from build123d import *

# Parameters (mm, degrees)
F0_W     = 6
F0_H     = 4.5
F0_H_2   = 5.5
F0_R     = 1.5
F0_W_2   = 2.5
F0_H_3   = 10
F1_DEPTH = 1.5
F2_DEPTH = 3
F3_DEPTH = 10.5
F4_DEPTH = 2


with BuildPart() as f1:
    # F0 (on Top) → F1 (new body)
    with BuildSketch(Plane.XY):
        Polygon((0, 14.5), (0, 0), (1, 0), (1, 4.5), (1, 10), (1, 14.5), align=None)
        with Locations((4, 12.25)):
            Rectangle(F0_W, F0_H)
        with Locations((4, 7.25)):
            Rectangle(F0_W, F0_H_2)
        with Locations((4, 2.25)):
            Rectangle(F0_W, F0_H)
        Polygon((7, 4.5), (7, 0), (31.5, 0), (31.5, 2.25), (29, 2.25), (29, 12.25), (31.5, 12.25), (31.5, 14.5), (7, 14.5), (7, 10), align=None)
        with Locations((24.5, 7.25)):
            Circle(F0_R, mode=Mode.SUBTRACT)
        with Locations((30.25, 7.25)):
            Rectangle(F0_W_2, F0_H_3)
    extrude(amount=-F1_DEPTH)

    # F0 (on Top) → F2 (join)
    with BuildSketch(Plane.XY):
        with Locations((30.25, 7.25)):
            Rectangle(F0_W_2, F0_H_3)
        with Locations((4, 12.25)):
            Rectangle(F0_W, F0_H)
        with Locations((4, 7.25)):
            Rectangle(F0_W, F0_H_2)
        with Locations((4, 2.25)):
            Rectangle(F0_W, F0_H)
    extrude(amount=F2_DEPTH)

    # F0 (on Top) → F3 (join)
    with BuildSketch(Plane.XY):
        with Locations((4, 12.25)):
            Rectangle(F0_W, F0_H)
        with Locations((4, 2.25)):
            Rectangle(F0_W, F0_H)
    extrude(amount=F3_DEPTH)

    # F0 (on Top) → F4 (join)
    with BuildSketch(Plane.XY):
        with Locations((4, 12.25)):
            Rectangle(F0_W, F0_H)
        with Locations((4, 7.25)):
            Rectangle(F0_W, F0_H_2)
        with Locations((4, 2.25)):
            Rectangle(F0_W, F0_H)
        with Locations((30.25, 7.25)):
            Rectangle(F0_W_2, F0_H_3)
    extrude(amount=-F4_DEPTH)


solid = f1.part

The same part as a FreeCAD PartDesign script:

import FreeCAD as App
import Part
import Sketcher

V = App.Vector
Q = App.Units.Quantity


def add_polygon(sketch, points):
    """Adds a closed chain of lines whose ends are joined by coincident constraints."""
    first, n = sketch.GeometryCount, len(points)
    for a, b in zip(points, points[1:] + points[:1]):
        sketch.addGeometry(Part.LineSegment(App.Vector(*a, 0), App.Vector(*b, 0)), False)
    for i in range(n):
        sketch.addConstraint(Sketcher.Constraint("Coincident", first + i, 2, first + (i + 1) % n, 1))

doc = App.newDocument("Part")
body = doc.addObject("PartDesign::Body", "Body")

sketch1 = body.newObject("Sketcher::SketchObject", "Sketch")
sketch1.AttachmentSupport = (doc.getObject("XY_Plane"), [""])
sketch1.MapMode = "FlatFace"
add_polygon(sketch1, [(0, 14.5), (0, 0), (31.5, 0), (31.5, 14.5)])
sketch1.addGeometry(Part.Circle(V(24.5, 7.25, 0), V(0, 0, 1), 1.5), False)
sketch1.addConstraint([
    Sketcher.Constraint("Vertical", 0),
    Sketcher.Constraint("Horizontal", 1),
    Sketcher.Constraint("Vertical", 2),
    Sketcher.Constraint("Horizontal", 3),
    Sketcher.Constraint("Coincident", 0, 2, -1, 1),
    Sketcher.Constraint("Diameter", 4, Q("3 mm")),
    Sketcher.Constraint("DistanceX", 1, 1, 1, 2, Q("31.5 mm")),
    Sketcher.Constraint("DistanceY", 0, 2, 0, 1, Q("14.5 mm")),
    Sketcher.Constraint("DistanceX", 4, 3, 1, 2, Q("7 mm")),
    Sketcher.Constraint("DistanceY", -1, 1, 4, 3, Q("7.25 mm")),
])
pad1 = body.newObject("PartDesign::Pad", "Pad")
pad1.Profile = sketch1
pad1.Length = 1.5
pad1.Reversed = True

sketch2 = body.newObject("Sketcher::SketchObject", "Sketch001")
sketch2.AttachmentSupport = (doc.getObject("XY_Plane"), [""])
sketch2.MapMode = "FlatFace"
add_polygon(sketch2, [(29, 12.25), (29, 2.25), (31.5, 2.25), (31.5, 12.25)])
add_polygon(sketch2, [(1, 14.5), (1, 0), (7, 0), (7, 14.5)])
sketch2.addConstraint([
    Sketcher.Constraint("Vertical", 0),
    Sketcher.Constraint("Horizontal", 1),
    Sketcher.Constraint("Vertical", 2),
    Sketcher.Constraint("Horizontal", 3),
    Sketcher.Constraint("Vertical", 4),
    Sketcher.Constraint("Horizontal", 5),
    Sketcher.Constraint("Vertical", 6),
    Sketcher.Constraint("Horizontal", 7),
    Sketcher.Constraint("PointOnObject", 4, 2, -1),
    Sketcher.Constraint("DistanceX", 5, 1, 5, 2, Q("6 mm")),
    Sketcher.Constraint("DistanceY", 0, 2, 0, 1, Q("10 mm")),
    Sketcher.Constraint("DistanceX", 1, 1, 1, 2, Q("2.5 mm")),
    Sketcher.Constraint("DistanceY", 4, 2, 4, 1, Q("14.5 mm")),
    Sketcher.Constraint("DistanceX", -1, 1, 0, 2, Q("29 mm")),
    Sketcher.Constraint("DistanceX", -1, 1, 4, 2, Q("1 mm")),
    Sketcher.Constraint("DistanceY", -1, 1, 0, 2, Q("2.25 mm")),
])
pad2 = body.newObject("PartDesign::Pad", "Pad001")
pad2.Profile = sketch2
pad2.Length = 3

sketch3 = body.newObject("Sketcher::SketchObject", "Sketch002")
sketch3.AttachmentSupport = (doc.getObject("XY_Plane"), [""])
sketch3.MapMode = "FlatFace"
add_polygon(sketch3, [(1, 14.5), (1, 10), (7, 10), (7, 14.5)])
add_polygon(sketch3, [(1, 4.5), (1, 0), (7, 0), (7, 4.5)])
sketch3.addConstraint([
    Sketcher.Constraint("Vertical", 0),
    Sketcher.Constraint("Horizontal", 1),
    Sketcher.Constraint("Vertical", 2),
    Sketcher.Constraint("Horizontal", 3),
    Sketcher.Constraint("Vertical", 4),
    Sketcher.Constraint("Horizontal", 5),
    Sketcher.Constraint("Vertical", 6),
    Sketcher.Constraint("Horizontal", 7),
    Sketcher.Constraint("PointOnObject", 4, 2, -1),
    Sketcher.Constraint("Vertical", 3, 2, 4, 2),
    Sketcher.Constraint("Vertical", 2, 2, 5, 2),
    Sketcher.Constraint("Equal", 2, 4),
    Sketcher.Constraint("DistanceX", 1, 1, 1, 2, Q("6 mm")),
    Sketcher.Constraint("DistanceY", 0, 2, 0, 1, Q("4.5 mm")),
    Sketcher.Constraint("DistanceX", -1, 1, 0, 2, Q("1 mm")),
    Sketcher.Constraint("DistanceY", -1, 1, 0, 2, Q("10 mm")),
])
pad3 = body.newObject("PartDesign::Pad", "Pad002")
pad3.Profile = sketch3
pad3.Length = 10.5

sketch4 = body.newObject("Sketcher::SketchObject", "Sketch003")
sketch4.AttachmentSupport = (doc.getObject("XY_Plane"), [""])
sketch4.MapMode = "FlatFace"
add_polygon(sketch4, [(1, 14.5), (1, 0), (7, 0), (7, 14.5)])
add_polygon(sketch4, [(29, 12.25), (29, 2.25), (31.5, 2.25), (31.5, 12.25)])
sketch4.addConstraint([
    Sketcher.Constraint("Vertical", 0),
    Sketcher.Constraint("Horizontal", 1),
    Sketcher.Constraint("Vertical", 2),
    Sketcher.Constraint("Horizontal", 3),
    Sketcher.Constraint("Vertical", 4),
    Sketcher.Constraint("Horizontal", 5),
    Sketcher.Constraint("Vertical", 6),
    Sketcher.Constraint("Horizontal", 7),
    Sketcher.Constraint("PointOnObject", 0, 2, -1),
    Sketcher.Constraint("DistanceX", 1, 1, 1, 2, Q("6 mm")),
    Sketcher.Constraint("DistanceY", 4, 2, 4, 1, Q("10 mm")),
    Sketcher.Constraint("DistanceX", 5, 1, 5, 2, Q("2.5 mm")),
    Sketcher.Constraint("DistanceY", 0, 2, 0, 1, Q("14.5 mm")),
    Sketcher.Constraint("DistanceX", -1, 1, 0, 2, Q("1 mm")),
    Sketcher.Constraint("DistanceX", -1, 1, 4, 2, Q("29 mm")),
    Sketcher.Constraint("DistanceY", -1, 1, 4, 2, Q("2.25 mm")),
])
pad4 = body.newObject("PartDesign::Pad", "Pad003")
pad4.Profile = sketch4
pad4.Length = 2
pad4.Reversed = True

doc.recompute()
